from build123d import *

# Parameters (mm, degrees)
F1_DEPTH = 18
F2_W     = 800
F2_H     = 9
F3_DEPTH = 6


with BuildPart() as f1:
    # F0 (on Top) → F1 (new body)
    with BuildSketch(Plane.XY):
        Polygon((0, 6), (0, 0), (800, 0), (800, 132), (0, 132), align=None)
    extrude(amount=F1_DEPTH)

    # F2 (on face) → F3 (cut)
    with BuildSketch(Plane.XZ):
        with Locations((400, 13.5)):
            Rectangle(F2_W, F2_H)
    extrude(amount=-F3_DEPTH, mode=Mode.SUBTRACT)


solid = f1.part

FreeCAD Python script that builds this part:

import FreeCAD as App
import Part
import Sketcher

doc = App.newDocument("Part")
body = doc.addObject("PartDesign::Body", "Body")

sketch1 = body.newObject("Sketcher::SketchObject", "Sketch")
sketch1.AttachmentSupport = (doc.getObject("XY_Plane"), [""])
sketch1.MapMode = "FlatFace"
sketch1.addGeometry([
    Part.LineSegment(App.Vector(0, 0, 0), App.Vector(800, 0, 0)),
    Part.LineSegment(App.Vector(800, 0, 0), App.Vector(800, 132, 0)),
    Part.LineSegment(App.Vector(800, 132, 0), App.Vector(0, 132, 0)),
    Part.LineSegment(App.Vector(0, 132, 0), App.Vector(0, 0, 0)),
], False)
sketch1.addConstraint([
    Sketcher.Constraint("Coincident", 0, 2, 1, 1),
    Sketcher.Constraint("Coincident", 1, 2, 2, 1),
    Sketcher.Constraint("Coincident", 2, 2, 3, 1),
    Sketcher.Constraint("Coincident", 3, 2, 0, 1),
    Sketcher.Constraint("Horizontal", 0),
    Sketcher.Constraint("Vertical", 1),
    Sketcher.Constraint("Horizontal", 2),
    Sketcher.Constraint("Vertical", 3),
    Sketcher.Constraint("Coincident", 3, 2, -1, 1),
    Sketcher.Constraint("DistanceX", 0, 1, 0, 2, 800.0),
    Sketcher.Constraint("DistanceY", 1, 1, 1, 2, 132.0),
])
pad1 = body.newObject("PartDesign::Pad", "Pad")
pad1.Profile = sketch1
pad1.Length = 18

sketch2 = body.newObject("Sketcher::SketchObject", "Sketch001")
sketch2.AttachmentSupport = (doc.getObject("XZ_Plane"), [""])
sketch2.MapMode = "FlatFace"
sketch2.addGeometry([
    Part.LineSegment(App.Vector(0, 18, 0), App.Vector(0, 9, 0)),
    Part.LineSegment(App.Vector(0, 9, 0), App.Vector(800, 9, 0)),
    Part.LineSegment(App.Vector(800, 9, 0), App.Vector(800, 18, 0)),
    Part.LineSegment(App.Vector(800, 18, 0), App.Vector(0, 18, 0)),
], False)
sketch2.addConstraint([
    Sketcher.Constraint("Coincident", 0, 2, 1, 1),
    Sketcher.Constraint("Coincident", 1, 2, 2, 1),
    Sketcher.Constraint("Coincident", 2, 2, 3, 1),
    Sketcher.Constraint("Coincident", 3, 2, 0, 1),
    Sketcher.Constraint("Vertical", 0),
    Sketcher.Constraint("Horizontal", 1),
    Sketcher.Constraint("Vertical", 2),
    Sketcher.Constraint("Horizontal", 3),
    Sketcher.Constraint("PointOnObject", 0, 2, -2),
    Sketcher.Constraint("DistanceX", 1, 1, 1, 2, 800.0),
    Sketcher.Constraint("DistanceY", 0, 2, 0, 1, 9.0),
    Sketcher.Constraint("DistanceY", -1, 1, 0, 2, 9.0),
])
pocket1 = body.newObject("PartDesign::Pocket", "Pocket")
pocket1.Profile = sketch2
pocket1.Length = 6

doc.recompute()
